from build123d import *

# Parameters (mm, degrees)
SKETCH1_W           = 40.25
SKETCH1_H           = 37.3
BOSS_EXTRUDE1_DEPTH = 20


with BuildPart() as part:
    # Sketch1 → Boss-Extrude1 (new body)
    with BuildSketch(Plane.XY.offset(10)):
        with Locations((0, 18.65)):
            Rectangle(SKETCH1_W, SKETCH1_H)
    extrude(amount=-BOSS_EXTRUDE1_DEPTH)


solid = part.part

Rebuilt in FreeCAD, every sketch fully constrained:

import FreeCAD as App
import Part
import Sketcher
from FreeCAD import Vector

doc = App.newDocument("Part")
params = doc.addObject("Spreadsheet::Sheet", "Params")
for row, (alias, value) in enumerate([
    ("sketch1_height", "37.3 mm"),
    ("sketch1_width", "40.25 mm"),
    ("pad1_length", "20 mm"),
], start=1):
    params.set(f"A{row}", alias)
    params.set(f"B{row}", "=" + value)
    params.setAlias(f"B{row}", alias)

body = doc.addObject("PartDesign::Body", "Body")

# Sketch on XY plane
sketch1 = body.newObject("Sketcher::SketchObject", "Sketch")
sketch1.AttachmentSupport = (doc.getObject("XY_Plane"), [""])
sketch1.MapMode = "FlatFace"
sketch1.AttachmentOffset = App.Placement(Vector(0, 0, 10), App.Rotation())
sketch1.addGeometry(Part.LineSegment(Vector(-20.125, 37.3, 0), Vector(-20.125, 0, 0)), False)
sketch1.addGeometry(Part.LineSegment(Vector(-20.125, 0, 0), Vector(20.125, 0, 0)), False)
sketch1.addGeometry(Part.LineSegment(Vector(20.125, 0, 0), Vector(20.125, 37.3, 0)), False)
sketch1.addGeometry(Part.LineSegment(Vector(20.125, 37.3, 0), Vector(-20.125, 37.3, 0)), False)
sketch1.addConstraint(Sketcher.Constraint("Coincident", 0, 2, 1, 1))
sketch1.addConstraint(Sketcher.Constraint("Coincident", 1, 2, 2, 1))
sketch1.addConstraint(Sketcher.Constraint("Coincident", 2, 2, 3, 1))
sketch1.addConstraint(Sketcher.Constraint("Coincident", 3, 2, 0, 1))
sketch1.addConstraint(Sketcher.Constraint("Vertical", 0))
sketch1.addConstraint(Sketcher.Constraint("Horizontal", 1))
sketch1.addConstraint(Sketcher.Constraint("Vertical", 2))
sketch1.addConstraint(Sketcher.Constraint("Horizontal", 3))
sketch1.addConstraint(Sketcher.Constraint("Symmetric", 0, 2, 1, 2, -1, 1))
sketch1.addConstraint(Sketcher.Constraint("DistanceY", 0, 2, 0, 1, 37.3))
sketch1.addConstraint(Sketcher.Constraint("DistanceX", 1, 1, 1, 2, 40.25))
sketch1.setExpression("Constraints[9]", "Params.sketch1_height")
sketch1.setExpression("Constraints[10]", "Params.sketch1_width")
pad1 = body.newObject("PartDesign::Pad", "Pad")
pad1.Profile = sketch1
pad1.setExpression("Length", "Params.pad1_length")
pad1.Reversed = True

doc.recompute()
